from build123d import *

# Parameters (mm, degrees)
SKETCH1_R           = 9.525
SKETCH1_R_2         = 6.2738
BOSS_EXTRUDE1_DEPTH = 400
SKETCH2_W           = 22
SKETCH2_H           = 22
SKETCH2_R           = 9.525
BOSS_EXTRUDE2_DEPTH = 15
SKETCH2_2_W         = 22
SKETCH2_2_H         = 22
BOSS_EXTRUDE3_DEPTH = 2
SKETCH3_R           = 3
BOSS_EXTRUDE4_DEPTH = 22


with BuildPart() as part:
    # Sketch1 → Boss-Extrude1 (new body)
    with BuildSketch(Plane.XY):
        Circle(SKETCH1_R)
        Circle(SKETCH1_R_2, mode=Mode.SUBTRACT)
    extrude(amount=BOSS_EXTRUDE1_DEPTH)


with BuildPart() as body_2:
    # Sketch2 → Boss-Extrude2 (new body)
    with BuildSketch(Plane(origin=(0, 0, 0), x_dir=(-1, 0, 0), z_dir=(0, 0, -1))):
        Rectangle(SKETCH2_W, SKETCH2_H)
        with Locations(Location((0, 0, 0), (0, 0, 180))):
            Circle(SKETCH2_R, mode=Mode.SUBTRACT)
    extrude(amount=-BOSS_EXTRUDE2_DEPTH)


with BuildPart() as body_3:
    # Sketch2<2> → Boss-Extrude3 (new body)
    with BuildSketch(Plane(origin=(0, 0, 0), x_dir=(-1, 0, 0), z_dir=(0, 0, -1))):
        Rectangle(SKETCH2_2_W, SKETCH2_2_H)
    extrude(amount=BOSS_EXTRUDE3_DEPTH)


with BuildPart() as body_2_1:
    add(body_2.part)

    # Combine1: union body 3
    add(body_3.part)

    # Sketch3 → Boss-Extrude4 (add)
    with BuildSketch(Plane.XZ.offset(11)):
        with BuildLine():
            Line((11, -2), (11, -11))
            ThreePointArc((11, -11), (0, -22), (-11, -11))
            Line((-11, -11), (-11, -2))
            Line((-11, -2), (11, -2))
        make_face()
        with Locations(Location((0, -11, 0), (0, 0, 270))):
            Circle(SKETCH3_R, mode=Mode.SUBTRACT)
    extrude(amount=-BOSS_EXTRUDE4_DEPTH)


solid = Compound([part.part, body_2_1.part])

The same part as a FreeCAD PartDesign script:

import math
import FreeCAD as App
import Part
import Sketcher

V = App.Vector


def add_polygon(sketch, points):
    """Adds a closed chain of lines whose ends are joined by coincident constraints."""
    first, n = sketch.GeometryCount, len(points)
    for a, b in zip(points, points[1:] + points[:1]):
        sketch.addGeometry(Part.LineSegment(App.Vector(*a, 0), App.Vector(*b, 0)), False)
    for i in range(n):
        sketch.addConstraint(Sketcher.Constraint("Coincident", first + i, 2, first + (i + 1) % n, 1))

doc = App.newDocument("Part")
params = doc.addObject("Spreadsheet::Sheet", "Params")
for row, (alias, value) in enumerate([
    ("sketch1_diameter", "19.05 mm"),
    ("pad1_length", "400 mm"),
    ("sketch2_diameter", "19.05 mm"),
    ("sketch2_width", "22 mm"),
    ("pad2_length", "15 mm"),
    ("sketch3_width", "22 mm"),
    ("pad3_length", "2 mm"),
    ("sketch4_diameter", "6 mm"),
    ("sketch4_radius", "11 mm"),
    ("sketch4_height", "9 mm"),
    ("pad4_length", "22 mm"),
], start=1):
    params.set(f"A{row}", alias)
    params.set(f"B{row}", "=" + value)
    params.setAlias(f"B{row}", alias)

body = doc.addObject("PartDesign::Body", "Body")

# Sketch on XY plane
sketch1 = body.newObject("Sketcher::SketchObject", "Sketch")
sketch1.AttachmentSupport = (doc.getObject("XY_Plane"), [""])
sketch1.MapMode = "FlatFace"
sketch1.addGeometry([
    Part.Circle(V(0, 0, 0), V(0, 0, 1), 10),
    Part.Circle(V(0, 0, 0), V(0, 0, 1), 6),
], False)
sketch1.addConstraint([
    Sketcher.Constraint("Coincident", 0, 3, -1, 1),
    Sketcher.Constraint("Coincident", 1, 3, -1, 1),
    Sketcher.Constraint("Diameter", 0, 19.05),
    Sketcher.Constraint("Diameter", 1, 12.5476),
])
sketch1.setExpression("Constraints[2]", "Params.sketch1_diameter")
pad1 = body.newObject("PartDesign::Pad", "Pad")
pad1.Profile = sketch1
pad1.setExpression("Length", "Params.pad1_length")
body2 = doc.addObject("PartDesign::Body", "Body001")

# Sketch on XY plane
sketch2 = body2.newObject("Sketcher::SketchObject", "Sketch001")
sketch2.AttachmentSupport = (doc.getObject("XY_Plane001"), [""])
sketch2.MapMode = "FlatFace"
add_polygon(sketch2, [(11, 11), (11, -11), (-11, -11), (-11, 11)])  # lines 0-3
sketch2.addGeometry(Part.Circle(V(0, 0, 0), V(0, 0, 1), 10), False)  # 4
sketch2.addConstraint([
    Sketcher.Constraint("Vertical", 0),
    Sketcher.Constraint("Horizontal", 1),
    Sketcher.Constraint("Vertical", 2),
    Sketcher.Constraint("Horizontal", 3),
    Sketcher.Constraint("Coincident", 4, 3, -1, 1),
    Sketcher.Constraint("Symmetric", 0, 2, 2, 2, -1, 1),
    Sketcher.Constraint("Equal", 3, 0),
    Sketcher.Constraint("Diameter", 4, 19.05),
    Sketcher.Constraint("DistanceX", 1, 2, 1, 1, 22.0),
])
sketch2.setExpression("Constraints[11]", "Params.sketch2_diameter")
sketch2.setExpression("Constraints[12]", "Params.sketch2_width")
pad2 = body2.newObject("PartDesign::Pad", "Pad001")
pad2.Profile = sketch2
pad2.setExpression("Length", "Params.pad2_length")
body3 = doc.addObject("PartDesign::Body", "Body002")

# Sketch on XY plane
sketch3 = body3.newObject("Sketcher::SketchObject", "Sketch002")
sketch3.AttachmentSupport = (doc.getObject("XY_Plane002"), [""])
sketch3.MapMode = "FlatFace"
add_polygon(sketch3, [(11, 11), (11, -11), (-11, -11), (-11, 11)])  # lines 0-3
sketch3.addConstraint([
    Sketcher.Constraint("Vertical", 0),
    Sketcher.Constraint("Horizontal", 1),
    Sketcher.Constraint("Vertical", 2),
    Sketcher.Constraint("Horizontal", 3),
    Sketcher.Constraint("Symmetric", 0, 2, 2, 2, -1, 1),
    Sketcher.Constraint("Equal", 3, 0),
    Sketcher.Constraint("DistanceX", 1, 2, 1, 1, 22.0),
])
sketch3.setExpression("Constraints[10]", "Params.sketch3_width")
pad3 = body3.newObject("PartDesign::Pad", "Pad002")
pad3.Profile = sketch3
pad3.setExpression("Length", "Params.pad3_length")
pad3.Reversed = True
doc.recompute()

boolean = body2.newObject("PartDesign::Boolean", "Boolean")
boolean.Type = "Fuse"
boolean.addObjects([body3])

# Sketch on XZ plane
sketch4 = body2.newObject("Sketcher::SketchObject", "Sketch003")
sketch4.AttachmentSupport = (doc.getObject("XZ_Plane001"), [""])
sketch4.MapMode = "FlatFace"
sketch4.AttachmentOffset = App.Placement(V(0, 0, 11), App.Rotation())
sketch4.addGeometry([
    Part.LineSegment(V(11, -11, 0), V(11, -2, 0)),  # 0
    Part.LineSegment(V(11, -2, 0), V(-11, -2, 0)),  # 1
    Part.LineSegment(V(-11, -2, 0), V(-11, -11, 0)),  # 2
    Part.ArcOfCircle(Part.Circle(V(0, -11, 0), V(0, 0, 1), 11), math.radians(180), math.radians(360)),  # 3
    Part.Circle(V(0, -11, 0), V(0, 0, 1), 3),  # 4
], False)
sketch4.addConstraint([
    Sketcher.Constraint("Coincident", 0, 2, 1, 1),
    Sketcher.Constraint("Coincident", 1, 2, 2, 1),
    Sketcher.Constraint("Tangent", 2, 2, 3, 1),
    Sketcher.Constraint("Tangent", 3, 2, 0, 1),
    Sketcher.Constraint("Vertical", 0),
    Sketcher.Constraint("Horizontal", 1),
    Sketcher.Constraint("Vertical", 2),
    Sketcher.Constraint("Coincident", 4, 3, 3, 3),
    Sketcher.Constraint("PointOnObject", 3, 3, -2),
    Sketcher.Constraint("Diameter", 4, 6.0),
    Sketcher.Constraint("Radius", 3, 11.0),
    Sketcher.Constraint("DistanceY", 0, 1, 0, 2, 9.0),
    Sketcher.Constraint("DistanceY", 3, 3, -1, 1, 11.0),
])
sketch4.setExpression("Constraints[9]", "Params.sketch4_diameter")
sketch4.setExpression("Constraints[10]", "Params.sketch4_radius")
sketch4.setExpression("Constraints[11]", "Params.sketch4_height")
pad4 = body2.newObject("PartDesign::Pad", "Pad003")
pad4.Profile = sketch4
pad4.setExpression("Length", "Params.pad4_length")
pad4.Reversed = True

doc.recompute()
